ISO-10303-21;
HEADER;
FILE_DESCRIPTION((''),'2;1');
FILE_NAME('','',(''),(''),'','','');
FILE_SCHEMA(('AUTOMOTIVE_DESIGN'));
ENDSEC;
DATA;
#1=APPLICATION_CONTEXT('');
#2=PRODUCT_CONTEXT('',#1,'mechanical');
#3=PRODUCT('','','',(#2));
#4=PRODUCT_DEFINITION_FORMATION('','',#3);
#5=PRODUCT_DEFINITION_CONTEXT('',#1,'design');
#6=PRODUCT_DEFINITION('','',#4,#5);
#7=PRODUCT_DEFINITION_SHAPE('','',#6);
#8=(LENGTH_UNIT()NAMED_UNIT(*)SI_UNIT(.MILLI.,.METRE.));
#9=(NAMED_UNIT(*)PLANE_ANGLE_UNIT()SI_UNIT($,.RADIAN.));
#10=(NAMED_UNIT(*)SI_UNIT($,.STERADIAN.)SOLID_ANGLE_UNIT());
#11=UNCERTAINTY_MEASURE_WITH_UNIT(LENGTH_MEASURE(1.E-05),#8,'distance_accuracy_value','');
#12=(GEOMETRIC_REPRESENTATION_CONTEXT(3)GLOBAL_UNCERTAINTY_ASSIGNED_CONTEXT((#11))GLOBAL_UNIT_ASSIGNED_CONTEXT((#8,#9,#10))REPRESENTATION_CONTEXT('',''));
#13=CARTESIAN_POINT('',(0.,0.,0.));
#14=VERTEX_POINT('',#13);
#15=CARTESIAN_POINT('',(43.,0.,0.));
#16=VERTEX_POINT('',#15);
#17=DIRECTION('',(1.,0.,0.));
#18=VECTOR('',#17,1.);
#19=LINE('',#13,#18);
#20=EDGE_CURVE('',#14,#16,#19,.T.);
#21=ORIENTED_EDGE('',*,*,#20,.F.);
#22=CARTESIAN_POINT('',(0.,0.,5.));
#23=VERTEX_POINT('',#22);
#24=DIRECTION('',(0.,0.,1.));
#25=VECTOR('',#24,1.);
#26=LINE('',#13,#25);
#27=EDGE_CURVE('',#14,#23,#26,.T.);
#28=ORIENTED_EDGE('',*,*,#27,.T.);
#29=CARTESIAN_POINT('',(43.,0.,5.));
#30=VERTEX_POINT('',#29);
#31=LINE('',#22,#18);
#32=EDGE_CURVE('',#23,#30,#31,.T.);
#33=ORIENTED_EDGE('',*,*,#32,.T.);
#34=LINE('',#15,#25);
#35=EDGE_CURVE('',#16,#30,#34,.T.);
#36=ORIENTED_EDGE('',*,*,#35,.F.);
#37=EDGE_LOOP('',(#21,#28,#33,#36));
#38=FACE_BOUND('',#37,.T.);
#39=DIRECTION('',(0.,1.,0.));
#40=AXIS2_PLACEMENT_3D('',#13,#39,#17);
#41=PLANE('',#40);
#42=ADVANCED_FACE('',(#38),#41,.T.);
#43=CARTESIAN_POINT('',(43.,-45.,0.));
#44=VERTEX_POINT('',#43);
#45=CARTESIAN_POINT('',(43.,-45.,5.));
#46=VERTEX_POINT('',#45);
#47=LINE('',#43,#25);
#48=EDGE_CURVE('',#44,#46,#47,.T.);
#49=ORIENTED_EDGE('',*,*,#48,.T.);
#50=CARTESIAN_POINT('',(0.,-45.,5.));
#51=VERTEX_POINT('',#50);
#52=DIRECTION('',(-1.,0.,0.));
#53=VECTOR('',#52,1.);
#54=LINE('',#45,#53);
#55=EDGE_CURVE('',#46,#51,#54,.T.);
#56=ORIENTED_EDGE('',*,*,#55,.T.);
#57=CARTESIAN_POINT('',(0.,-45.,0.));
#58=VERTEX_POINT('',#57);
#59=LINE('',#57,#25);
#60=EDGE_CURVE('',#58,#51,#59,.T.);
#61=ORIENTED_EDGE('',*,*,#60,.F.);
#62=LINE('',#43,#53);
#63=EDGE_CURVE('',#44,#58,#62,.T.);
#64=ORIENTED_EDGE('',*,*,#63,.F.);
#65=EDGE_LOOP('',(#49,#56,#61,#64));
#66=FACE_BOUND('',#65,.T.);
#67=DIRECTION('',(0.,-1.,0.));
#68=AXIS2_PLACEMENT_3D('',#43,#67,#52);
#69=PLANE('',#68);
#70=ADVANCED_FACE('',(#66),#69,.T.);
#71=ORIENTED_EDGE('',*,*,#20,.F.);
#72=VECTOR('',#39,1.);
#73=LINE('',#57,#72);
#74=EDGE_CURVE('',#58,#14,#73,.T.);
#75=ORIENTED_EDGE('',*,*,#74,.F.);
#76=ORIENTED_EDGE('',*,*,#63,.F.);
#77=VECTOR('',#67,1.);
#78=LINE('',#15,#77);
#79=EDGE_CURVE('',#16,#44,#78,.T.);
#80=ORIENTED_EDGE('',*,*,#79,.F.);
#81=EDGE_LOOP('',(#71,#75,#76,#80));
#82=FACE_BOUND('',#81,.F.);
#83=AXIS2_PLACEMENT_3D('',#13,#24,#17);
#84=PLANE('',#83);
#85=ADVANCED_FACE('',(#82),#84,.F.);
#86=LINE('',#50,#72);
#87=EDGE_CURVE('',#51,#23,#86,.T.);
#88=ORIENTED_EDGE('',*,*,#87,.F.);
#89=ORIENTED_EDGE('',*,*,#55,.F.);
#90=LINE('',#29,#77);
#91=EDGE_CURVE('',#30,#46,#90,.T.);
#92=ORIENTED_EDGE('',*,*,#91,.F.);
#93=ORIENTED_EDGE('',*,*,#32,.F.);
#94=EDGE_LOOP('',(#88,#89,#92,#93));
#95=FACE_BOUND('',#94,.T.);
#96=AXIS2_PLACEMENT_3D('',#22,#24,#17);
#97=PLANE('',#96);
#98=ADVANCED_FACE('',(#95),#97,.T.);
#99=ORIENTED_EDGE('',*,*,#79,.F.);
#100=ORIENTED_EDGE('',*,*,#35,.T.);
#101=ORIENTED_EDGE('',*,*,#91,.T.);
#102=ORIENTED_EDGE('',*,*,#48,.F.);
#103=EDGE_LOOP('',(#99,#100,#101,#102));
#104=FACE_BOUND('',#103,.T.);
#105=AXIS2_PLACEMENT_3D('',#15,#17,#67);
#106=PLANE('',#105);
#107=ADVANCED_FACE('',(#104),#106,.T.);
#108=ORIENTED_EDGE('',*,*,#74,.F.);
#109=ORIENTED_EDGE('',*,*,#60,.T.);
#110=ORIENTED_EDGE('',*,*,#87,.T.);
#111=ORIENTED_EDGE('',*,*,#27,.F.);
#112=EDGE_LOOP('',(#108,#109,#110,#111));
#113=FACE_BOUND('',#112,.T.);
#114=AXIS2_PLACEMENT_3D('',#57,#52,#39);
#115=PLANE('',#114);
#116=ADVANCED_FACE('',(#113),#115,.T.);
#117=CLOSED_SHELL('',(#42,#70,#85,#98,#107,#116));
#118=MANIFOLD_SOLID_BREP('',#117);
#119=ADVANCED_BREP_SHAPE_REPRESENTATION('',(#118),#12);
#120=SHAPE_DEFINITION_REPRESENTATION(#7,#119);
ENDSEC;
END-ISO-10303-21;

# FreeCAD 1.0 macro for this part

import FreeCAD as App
import Part
import Sketcher
from FreeCAD import Vector


def add_polygon(sketch, points):
    """Adds a closed chain of lines whose ends are joined by coincident constraints."""
    first, n = sketch.GeometryCount, len(points)
    for a, b in zip(points, points[1:] + points[:1]):
        sketch.addGeometry(Part.LineSegment(App.Vector(*a, 0), App.Vector(*b, 0)), False)
    for i in range(n):
        sketch.addConstraint(Sketcher.Constraint("Coincident", first + i, 2, first + (i + 1) % n, 1))

doc = App.newDocument("Part")
body = doc.addObject("PartDesign::Body", "Body")

# Sketch on XY plane
sketch1 = doc.addObject("Sketcher::SketchObject", "Sketch")
body.addObject(sketch1)
sketch1.AttachmentSupport = (doc.XY_Plane, [""])
sketch1.MapMode = "FlatFace"
add_polygon(sketch1, [(43, 0), (0, 0), (0, -45), (43, -45)])  # lines 0-3
sketch1.addConstraint([
    Sketcher.Constraint("Horizontal", 0),
    Sketcher.Constraint("Vertical", 1),
    Sketcher.Constraint("Horizontal", 2),
    Sketcher.Constraint("Vertical", 3),
    Sketcher.Constraint("Coincident", 0, 2, -1, 1),
    Sketcher.Constraint("DistanceX", 0, 2, 0, 1, 43.0),
    Sketcher.Constraint("DistanceY", 1, 2, 1, 1, 45.0),
])
pad1 = doc.addObject("PartDesign::Pad", "Pad")
body.addObject(pad1)
pad1.Profile = sketch1
pad1.Length = 5

doc.recompute()
